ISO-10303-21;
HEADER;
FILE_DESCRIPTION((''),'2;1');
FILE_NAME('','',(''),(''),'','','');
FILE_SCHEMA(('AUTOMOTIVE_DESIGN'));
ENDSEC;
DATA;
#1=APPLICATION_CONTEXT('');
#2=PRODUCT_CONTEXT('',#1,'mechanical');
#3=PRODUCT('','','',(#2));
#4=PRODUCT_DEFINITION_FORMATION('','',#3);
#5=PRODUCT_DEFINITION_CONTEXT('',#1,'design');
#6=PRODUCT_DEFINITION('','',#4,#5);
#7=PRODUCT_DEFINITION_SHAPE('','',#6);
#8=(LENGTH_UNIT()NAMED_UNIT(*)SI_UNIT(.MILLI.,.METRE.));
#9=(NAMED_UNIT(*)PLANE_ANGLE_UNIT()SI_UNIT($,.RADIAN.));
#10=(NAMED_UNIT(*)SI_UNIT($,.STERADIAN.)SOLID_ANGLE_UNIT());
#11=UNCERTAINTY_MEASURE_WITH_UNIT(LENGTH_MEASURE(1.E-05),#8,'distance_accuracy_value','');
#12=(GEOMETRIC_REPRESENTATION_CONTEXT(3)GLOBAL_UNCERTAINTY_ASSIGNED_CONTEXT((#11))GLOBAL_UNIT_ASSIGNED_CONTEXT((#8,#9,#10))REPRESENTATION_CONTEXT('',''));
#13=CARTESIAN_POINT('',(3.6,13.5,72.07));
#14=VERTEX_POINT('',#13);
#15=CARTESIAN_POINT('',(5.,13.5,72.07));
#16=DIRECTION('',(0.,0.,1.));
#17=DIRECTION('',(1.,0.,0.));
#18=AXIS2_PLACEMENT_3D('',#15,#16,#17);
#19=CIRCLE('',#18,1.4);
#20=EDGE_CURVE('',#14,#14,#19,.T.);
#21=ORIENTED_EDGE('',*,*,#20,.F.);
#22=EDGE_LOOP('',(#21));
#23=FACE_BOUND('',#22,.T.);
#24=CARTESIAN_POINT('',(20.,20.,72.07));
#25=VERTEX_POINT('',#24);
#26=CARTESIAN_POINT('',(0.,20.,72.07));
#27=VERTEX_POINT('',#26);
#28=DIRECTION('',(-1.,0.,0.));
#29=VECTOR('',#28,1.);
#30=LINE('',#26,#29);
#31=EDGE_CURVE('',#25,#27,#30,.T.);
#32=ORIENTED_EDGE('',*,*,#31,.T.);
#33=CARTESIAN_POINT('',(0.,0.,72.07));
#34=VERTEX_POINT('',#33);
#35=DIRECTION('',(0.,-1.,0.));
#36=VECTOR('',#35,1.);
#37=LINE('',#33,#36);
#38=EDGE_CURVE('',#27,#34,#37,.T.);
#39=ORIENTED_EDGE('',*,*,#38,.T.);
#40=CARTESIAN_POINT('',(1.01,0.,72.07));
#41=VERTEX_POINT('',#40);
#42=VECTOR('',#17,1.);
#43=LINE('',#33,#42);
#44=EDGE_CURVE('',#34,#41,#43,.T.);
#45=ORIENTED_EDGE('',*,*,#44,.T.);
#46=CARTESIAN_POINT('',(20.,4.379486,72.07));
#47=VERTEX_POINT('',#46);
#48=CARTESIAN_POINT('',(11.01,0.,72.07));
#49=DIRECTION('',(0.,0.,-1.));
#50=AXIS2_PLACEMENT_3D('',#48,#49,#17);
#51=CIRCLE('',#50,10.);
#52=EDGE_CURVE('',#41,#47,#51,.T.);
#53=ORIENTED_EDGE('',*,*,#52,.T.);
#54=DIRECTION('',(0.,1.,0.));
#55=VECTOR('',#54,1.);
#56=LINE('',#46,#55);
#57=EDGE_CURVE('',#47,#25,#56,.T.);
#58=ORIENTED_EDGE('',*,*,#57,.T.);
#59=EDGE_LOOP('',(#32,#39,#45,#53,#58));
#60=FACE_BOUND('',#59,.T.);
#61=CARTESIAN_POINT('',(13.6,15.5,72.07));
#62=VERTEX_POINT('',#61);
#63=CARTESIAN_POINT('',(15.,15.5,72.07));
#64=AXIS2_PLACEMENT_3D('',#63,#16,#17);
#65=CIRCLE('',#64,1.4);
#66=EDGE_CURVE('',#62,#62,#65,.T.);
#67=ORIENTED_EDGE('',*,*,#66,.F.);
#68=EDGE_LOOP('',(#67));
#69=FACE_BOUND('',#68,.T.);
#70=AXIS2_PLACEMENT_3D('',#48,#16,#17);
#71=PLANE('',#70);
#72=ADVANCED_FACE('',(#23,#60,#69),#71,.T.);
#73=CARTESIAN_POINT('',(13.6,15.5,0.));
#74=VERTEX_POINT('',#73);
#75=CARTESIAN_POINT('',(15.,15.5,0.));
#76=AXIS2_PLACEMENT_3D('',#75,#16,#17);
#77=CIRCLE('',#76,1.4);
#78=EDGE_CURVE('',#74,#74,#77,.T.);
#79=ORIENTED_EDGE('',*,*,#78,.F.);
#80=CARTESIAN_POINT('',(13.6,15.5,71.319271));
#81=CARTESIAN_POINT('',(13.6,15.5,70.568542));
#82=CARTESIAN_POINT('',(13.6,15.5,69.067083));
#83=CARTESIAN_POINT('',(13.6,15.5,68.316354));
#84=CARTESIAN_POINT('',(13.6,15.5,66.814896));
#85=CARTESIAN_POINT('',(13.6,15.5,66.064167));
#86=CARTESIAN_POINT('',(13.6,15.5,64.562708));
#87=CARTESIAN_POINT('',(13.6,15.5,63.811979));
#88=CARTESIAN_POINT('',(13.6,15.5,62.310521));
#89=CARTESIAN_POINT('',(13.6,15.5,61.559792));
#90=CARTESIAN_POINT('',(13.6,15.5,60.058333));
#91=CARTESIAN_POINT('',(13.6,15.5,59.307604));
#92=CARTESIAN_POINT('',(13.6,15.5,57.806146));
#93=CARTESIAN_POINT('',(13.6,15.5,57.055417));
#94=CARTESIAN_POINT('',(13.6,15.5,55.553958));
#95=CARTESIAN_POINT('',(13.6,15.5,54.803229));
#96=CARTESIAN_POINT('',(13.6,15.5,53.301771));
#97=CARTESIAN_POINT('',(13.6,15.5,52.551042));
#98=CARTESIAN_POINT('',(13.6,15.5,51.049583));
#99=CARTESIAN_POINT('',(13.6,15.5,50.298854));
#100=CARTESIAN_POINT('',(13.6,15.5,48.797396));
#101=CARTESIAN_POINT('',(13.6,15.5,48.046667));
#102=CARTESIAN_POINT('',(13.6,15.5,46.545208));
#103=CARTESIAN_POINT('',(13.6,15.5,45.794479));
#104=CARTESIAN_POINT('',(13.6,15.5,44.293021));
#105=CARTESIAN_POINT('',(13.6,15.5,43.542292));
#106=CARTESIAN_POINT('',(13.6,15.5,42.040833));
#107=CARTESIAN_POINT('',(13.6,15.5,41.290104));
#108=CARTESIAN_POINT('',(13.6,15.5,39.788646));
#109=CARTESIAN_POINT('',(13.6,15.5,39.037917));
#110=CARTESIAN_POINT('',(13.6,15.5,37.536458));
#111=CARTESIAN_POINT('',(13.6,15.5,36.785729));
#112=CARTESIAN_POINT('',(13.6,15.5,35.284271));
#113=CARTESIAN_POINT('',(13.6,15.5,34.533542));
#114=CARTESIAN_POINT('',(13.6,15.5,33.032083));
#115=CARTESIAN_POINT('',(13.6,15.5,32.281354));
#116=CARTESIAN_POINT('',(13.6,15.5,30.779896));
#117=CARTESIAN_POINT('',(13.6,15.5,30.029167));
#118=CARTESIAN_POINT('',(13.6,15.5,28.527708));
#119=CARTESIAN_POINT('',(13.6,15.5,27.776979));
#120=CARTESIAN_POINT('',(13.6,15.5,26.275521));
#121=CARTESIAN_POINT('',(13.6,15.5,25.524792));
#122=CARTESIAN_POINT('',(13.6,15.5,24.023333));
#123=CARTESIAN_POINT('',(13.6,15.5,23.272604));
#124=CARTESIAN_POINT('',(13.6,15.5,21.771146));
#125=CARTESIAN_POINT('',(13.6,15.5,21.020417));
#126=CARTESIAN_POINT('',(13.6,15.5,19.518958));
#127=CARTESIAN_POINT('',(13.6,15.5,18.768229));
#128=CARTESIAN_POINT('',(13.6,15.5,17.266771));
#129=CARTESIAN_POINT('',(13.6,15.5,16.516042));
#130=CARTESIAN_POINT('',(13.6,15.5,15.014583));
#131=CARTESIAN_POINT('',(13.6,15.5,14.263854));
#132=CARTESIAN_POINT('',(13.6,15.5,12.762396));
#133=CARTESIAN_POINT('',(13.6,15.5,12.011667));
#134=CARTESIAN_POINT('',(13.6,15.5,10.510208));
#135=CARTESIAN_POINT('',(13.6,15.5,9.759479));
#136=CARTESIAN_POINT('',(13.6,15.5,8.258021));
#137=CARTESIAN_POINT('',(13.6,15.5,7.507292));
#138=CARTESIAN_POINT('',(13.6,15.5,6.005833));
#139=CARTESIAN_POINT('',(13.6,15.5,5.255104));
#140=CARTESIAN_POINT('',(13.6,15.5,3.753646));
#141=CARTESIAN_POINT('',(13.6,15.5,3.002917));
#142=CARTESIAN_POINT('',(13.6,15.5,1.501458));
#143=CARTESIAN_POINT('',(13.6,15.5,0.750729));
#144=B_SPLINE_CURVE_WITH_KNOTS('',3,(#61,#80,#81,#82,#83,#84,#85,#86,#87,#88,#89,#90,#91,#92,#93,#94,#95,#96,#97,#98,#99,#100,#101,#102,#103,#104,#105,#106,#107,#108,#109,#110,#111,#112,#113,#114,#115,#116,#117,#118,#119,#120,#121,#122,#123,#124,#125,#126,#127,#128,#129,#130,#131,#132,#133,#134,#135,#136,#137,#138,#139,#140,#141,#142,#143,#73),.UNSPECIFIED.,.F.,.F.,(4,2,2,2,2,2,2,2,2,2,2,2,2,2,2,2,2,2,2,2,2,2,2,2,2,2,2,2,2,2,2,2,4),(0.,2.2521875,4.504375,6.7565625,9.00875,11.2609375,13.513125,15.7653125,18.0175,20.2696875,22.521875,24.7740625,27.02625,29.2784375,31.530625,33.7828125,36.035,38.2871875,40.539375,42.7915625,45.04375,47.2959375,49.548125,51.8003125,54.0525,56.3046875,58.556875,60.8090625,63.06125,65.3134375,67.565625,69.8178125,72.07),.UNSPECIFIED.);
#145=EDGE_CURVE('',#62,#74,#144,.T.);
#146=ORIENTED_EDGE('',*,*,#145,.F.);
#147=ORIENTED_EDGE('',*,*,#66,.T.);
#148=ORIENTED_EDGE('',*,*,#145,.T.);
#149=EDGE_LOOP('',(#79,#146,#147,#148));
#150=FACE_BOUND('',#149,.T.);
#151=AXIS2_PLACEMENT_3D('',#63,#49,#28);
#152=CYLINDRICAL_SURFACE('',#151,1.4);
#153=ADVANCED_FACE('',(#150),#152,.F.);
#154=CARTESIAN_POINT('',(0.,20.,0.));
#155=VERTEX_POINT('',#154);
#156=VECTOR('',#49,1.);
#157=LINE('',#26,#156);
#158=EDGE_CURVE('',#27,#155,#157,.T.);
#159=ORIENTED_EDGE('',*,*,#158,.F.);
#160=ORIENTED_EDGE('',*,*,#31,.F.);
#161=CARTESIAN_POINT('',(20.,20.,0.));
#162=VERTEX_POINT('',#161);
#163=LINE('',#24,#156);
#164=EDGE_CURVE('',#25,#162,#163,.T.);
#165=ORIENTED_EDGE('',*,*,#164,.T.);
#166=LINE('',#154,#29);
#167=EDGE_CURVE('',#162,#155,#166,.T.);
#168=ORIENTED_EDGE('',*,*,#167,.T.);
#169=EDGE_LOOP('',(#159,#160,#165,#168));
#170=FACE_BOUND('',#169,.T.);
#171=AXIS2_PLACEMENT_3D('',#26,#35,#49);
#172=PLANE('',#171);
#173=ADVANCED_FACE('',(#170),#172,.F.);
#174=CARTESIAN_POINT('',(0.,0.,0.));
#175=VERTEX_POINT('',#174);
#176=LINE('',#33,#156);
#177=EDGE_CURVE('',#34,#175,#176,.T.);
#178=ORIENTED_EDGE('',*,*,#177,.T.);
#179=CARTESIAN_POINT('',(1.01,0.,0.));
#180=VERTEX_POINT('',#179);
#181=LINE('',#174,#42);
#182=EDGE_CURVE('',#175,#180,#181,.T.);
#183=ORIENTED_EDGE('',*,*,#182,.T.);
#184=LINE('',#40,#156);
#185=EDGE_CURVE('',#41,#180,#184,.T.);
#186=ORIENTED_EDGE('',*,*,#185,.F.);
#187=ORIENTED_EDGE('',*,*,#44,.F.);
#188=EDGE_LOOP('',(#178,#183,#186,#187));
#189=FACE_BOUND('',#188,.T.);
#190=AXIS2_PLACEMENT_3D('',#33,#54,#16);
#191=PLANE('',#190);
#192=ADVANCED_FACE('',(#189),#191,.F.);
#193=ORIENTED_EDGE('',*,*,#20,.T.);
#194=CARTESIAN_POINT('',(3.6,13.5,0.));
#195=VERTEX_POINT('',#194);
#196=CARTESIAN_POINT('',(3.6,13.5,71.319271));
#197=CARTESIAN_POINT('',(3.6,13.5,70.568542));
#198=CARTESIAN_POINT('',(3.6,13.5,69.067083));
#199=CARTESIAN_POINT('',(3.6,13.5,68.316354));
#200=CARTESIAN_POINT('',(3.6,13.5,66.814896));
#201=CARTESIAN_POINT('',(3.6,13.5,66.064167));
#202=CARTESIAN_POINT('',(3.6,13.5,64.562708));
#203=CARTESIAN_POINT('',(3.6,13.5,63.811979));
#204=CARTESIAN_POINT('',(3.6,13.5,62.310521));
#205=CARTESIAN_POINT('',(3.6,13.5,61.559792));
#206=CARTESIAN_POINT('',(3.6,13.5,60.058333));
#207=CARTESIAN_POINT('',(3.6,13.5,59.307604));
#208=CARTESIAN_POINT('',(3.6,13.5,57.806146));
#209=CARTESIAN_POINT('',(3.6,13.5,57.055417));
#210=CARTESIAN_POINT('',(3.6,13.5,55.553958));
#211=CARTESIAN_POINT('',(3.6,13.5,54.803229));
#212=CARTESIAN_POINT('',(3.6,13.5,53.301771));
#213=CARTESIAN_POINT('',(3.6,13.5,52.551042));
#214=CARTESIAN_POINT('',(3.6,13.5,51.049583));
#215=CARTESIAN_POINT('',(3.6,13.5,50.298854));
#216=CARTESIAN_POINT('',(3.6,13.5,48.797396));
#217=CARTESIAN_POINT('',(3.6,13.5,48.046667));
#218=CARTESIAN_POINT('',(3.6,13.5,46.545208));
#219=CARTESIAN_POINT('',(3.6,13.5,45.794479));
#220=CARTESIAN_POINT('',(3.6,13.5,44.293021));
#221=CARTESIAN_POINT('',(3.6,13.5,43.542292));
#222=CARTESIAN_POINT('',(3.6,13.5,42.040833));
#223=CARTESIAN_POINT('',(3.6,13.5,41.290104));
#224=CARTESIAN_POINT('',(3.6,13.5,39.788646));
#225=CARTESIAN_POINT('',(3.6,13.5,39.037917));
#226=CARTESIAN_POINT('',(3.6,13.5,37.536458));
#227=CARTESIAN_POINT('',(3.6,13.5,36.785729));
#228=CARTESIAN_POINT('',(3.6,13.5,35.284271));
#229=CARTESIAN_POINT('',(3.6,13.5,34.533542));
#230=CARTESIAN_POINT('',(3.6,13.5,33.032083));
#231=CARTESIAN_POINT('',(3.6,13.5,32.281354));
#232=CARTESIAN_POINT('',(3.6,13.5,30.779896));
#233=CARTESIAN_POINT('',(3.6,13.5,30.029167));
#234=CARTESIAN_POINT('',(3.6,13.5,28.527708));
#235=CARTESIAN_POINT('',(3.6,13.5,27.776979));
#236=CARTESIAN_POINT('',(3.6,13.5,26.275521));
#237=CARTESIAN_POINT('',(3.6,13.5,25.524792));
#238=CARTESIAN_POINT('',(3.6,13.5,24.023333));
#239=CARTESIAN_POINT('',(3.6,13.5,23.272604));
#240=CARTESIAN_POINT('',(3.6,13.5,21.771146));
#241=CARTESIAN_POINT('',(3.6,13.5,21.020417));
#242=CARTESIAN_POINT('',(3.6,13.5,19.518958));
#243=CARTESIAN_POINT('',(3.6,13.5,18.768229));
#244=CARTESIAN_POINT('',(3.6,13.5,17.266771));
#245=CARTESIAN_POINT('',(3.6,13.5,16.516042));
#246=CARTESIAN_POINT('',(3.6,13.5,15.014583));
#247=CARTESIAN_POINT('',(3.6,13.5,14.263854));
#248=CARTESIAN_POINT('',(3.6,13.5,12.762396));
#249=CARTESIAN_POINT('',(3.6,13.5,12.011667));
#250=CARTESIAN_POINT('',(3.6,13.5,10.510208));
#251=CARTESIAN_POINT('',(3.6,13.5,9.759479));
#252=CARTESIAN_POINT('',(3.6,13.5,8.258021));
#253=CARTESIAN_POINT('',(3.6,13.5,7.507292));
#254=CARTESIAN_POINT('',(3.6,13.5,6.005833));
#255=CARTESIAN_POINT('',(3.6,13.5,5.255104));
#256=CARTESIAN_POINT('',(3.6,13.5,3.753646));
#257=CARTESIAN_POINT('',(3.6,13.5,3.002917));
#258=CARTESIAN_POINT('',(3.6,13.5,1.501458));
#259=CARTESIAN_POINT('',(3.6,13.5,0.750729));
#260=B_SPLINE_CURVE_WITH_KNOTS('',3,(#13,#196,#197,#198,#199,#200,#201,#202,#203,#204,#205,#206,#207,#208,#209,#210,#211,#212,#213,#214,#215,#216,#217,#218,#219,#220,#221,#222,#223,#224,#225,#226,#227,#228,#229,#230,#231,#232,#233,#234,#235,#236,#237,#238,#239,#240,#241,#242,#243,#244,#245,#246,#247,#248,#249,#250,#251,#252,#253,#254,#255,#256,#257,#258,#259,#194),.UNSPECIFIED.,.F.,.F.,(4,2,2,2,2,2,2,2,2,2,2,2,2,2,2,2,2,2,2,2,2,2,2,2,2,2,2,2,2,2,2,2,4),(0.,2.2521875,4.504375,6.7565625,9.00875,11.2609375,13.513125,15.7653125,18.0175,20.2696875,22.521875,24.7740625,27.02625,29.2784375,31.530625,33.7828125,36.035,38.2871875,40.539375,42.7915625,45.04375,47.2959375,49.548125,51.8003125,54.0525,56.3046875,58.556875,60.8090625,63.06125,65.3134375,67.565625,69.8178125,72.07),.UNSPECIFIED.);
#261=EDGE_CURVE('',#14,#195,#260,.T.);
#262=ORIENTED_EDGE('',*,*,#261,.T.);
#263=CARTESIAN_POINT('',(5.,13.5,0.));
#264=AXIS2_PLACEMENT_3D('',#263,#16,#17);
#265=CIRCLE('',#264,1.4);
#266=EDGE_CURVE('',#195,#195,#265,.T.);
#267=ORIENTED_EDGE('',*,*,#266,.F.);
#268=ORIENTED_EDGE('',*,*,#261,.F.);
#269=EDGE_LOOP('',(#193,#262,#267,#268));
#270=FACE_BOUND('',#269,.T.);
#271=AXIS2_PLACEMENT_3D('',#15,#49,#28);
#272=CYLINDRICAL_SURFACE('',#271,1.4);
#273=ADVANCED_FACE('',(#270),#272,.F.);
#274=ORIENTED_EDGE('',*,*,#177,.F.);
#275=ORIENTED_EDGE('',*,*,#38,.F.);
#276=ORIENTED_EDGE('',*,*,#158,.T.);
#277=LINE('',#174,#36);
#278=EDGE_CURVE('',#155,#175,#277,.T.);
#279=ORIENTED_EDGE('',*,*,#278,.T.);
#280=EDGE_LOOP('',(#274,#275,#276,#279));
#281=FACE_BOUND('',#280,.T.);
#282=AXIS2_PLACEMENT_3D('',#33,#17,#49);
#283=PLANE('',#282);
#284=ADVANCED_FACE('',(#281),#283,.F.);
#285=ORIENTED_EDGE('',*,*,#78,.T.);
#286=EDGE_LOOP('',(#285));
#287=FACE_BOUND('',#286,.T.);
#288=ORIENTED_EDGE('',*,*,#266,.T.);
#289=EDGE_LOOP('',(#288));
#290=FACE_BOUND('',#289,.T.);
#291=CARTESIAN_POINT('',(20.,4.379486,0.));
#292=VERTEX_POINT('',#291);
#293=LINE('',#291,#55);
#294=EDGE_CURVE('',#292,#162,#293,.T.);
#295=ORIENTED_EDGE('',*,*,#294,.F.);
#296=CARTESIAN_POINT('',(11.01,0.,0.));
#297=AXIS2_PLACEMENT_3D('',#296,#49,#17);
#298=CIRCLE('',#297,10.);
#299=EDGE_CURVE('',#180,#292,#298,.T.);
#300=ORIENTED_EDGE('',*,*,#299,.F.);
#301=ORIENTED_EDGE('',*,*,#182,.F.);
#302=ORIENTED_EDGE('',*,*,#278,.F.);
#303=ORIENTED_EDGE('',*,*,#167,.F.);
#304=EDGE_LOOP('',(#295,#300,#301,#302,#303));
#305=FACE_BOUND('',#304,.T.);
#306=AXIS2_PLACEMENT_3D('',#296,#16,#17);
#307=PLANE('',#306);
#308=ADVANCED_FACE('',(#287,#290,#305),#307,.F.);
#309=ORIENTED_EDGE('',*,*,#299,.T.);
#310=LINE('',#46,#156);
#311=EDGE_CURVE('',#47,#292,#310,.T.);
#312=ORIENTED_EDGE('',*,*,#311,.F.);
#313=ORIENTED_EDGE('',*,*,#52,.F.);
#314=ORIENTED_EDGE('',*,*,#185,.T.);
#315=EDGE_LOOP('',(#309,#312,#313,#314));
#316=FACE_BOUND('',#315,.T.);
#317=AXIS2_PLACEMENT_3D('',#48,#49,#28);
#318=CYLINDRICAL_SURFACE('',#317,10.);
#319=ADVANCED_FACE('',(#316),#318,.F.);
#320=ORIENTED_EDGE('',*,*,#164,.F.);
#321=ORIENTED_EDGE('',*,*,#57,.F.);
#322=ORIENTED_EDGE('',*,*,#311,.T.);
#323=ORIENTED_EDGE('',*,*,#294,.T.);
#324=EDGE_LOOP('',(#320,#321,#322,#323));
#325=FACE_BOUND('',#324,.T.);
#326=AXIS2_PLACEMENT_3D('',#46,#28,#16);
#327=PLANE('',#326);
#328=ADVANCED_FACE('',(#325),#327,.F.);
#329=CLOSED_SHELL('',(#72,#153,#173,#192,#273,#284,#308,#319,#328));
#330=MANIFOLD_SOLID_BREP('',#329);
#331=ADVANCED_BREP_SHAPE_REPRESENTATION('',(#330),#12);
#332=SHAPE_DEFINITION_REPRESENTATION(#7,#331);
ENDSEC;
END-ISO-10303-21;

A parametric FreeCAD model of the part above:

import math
import FreeCAD as App
import Part
import Sketcher
from FreeCAD import Vector

doc = App.newDocument("Part")
body = doc.addObject("PartDesign::Body", "Body")

sketch1 = doc.addObject("Sketcher::SketchObject", "Sketch")
body.addObject(sketch1)
sketch1.AttachmentSupport = (doc.XY_Plane, [""])
sketch1.MapMode = "FlatFace"
sketch1.addGeometry(Part.LineSegment(Vector(0, 0, 0), Vector(1.01, 0, 0)), False)
sketch1.addGeometry(Part.ArcOfCircle(Part.Circle(Vector(11.01, 0, 0), Vector(0, 0, 1), 10), math.radians(25.973069), math.radians(180)), False)
sketch1.addGeometry(Part.LineSegment(Vector(20, 4.379486, 0), Vector(20, 20, 0)), False)
sketch1.addGeometry(Part.LineSegment(Vector(20, 20, 0), Vector(0, 20, 0)), False)
sketch1.addGeometry(Part.LineSegment(Vector(0, 20, 0), Vector(0, 0, 0)), False)
sketch1.addGeometry(Part.Circle(Vector(5, 13.5, 0), Vector(0, 0, 1), 1.4), False)
sketch1.addGeometry(Part.Circle(Vector(15, 15.5, 0), Vector(0, 0, 1), 1.4), False)
sketch1.addConstraint(Sketcher.Constraint("Coincident", 0, 2, 1, 2))
sketch1.addConstraint(Sketcher.Constraint("Coincident", 1, 1, 2, 1))
sketch1.addConstraint(Sketcher.Constraint("Coincident", 2, 2, 3, 1))
sketch1.addConstraint(Sketcher.Constraint("Coincident", 3, 2, 4, 1))
sketch1.addConstraint(Sketcher.Constraint("Coincident", 4, 2, 0, 1))
sketch1.addConstraint(Sketcher.Constraint("Horizontal", 0))
sketch1.addConstraint(Sketcher.Constraint("Vertical", 2))
sketch1.addConstraint(Sketcher.Constraint("Horizontal", 3))
sketch1.addConstraint(Sketcher.Constraint("Vertical", 4))
sketch1.addConstraint(Sketcher.Constraint("Coincident", 4, 2, -1, 1))
sketch1.addConstraint(Sketcher.Constraint("Equal", 5, 6))
sketch1.addConstraint(Sketcher.Constraint("PointOnObject", 1, 3, -1))
sketch1.addConstraint(Sketcher.Constraint("Equal", 3, 4))
sketch1.addConstraint(Sketcher.Constraint("Radius", 1, 10.0))
sketch1.addConstraint(Sketcher.Constraint("Diameter", 5, 2.8))
sketch1.addConstraint(Sketcher.Constraint("DistanceX", 3, 2, 3, 1, 20.0))
sketch1.addConstraint(Sketcher.Constraint("DistanceX", -1, 1, 5, 3, 5.0))
sketch1.addConstraint(Sketcher.Constraint("DistanceX", -1, 1, 6, 3, 15.0))
sketch1.addConstraint(Sketcher.Constraint("DistanceY", 5, 3, 6, 3, 2.0))
sketch1.addConstraint(Sketcher.Constraint("DistanceX", 0, 1, 0, 2, 1.01))
sketch1.addConstraint(Sketcher.Constraint("DistanceY", -1, 1, 5, 3, 13.5))
pad1 = doc.addObject("PartDesign::Pad", "Pad")
body.addObject(pad1)
pad1.Profile = sketch1
pad1.Length = 72.07

doc.recompute()
